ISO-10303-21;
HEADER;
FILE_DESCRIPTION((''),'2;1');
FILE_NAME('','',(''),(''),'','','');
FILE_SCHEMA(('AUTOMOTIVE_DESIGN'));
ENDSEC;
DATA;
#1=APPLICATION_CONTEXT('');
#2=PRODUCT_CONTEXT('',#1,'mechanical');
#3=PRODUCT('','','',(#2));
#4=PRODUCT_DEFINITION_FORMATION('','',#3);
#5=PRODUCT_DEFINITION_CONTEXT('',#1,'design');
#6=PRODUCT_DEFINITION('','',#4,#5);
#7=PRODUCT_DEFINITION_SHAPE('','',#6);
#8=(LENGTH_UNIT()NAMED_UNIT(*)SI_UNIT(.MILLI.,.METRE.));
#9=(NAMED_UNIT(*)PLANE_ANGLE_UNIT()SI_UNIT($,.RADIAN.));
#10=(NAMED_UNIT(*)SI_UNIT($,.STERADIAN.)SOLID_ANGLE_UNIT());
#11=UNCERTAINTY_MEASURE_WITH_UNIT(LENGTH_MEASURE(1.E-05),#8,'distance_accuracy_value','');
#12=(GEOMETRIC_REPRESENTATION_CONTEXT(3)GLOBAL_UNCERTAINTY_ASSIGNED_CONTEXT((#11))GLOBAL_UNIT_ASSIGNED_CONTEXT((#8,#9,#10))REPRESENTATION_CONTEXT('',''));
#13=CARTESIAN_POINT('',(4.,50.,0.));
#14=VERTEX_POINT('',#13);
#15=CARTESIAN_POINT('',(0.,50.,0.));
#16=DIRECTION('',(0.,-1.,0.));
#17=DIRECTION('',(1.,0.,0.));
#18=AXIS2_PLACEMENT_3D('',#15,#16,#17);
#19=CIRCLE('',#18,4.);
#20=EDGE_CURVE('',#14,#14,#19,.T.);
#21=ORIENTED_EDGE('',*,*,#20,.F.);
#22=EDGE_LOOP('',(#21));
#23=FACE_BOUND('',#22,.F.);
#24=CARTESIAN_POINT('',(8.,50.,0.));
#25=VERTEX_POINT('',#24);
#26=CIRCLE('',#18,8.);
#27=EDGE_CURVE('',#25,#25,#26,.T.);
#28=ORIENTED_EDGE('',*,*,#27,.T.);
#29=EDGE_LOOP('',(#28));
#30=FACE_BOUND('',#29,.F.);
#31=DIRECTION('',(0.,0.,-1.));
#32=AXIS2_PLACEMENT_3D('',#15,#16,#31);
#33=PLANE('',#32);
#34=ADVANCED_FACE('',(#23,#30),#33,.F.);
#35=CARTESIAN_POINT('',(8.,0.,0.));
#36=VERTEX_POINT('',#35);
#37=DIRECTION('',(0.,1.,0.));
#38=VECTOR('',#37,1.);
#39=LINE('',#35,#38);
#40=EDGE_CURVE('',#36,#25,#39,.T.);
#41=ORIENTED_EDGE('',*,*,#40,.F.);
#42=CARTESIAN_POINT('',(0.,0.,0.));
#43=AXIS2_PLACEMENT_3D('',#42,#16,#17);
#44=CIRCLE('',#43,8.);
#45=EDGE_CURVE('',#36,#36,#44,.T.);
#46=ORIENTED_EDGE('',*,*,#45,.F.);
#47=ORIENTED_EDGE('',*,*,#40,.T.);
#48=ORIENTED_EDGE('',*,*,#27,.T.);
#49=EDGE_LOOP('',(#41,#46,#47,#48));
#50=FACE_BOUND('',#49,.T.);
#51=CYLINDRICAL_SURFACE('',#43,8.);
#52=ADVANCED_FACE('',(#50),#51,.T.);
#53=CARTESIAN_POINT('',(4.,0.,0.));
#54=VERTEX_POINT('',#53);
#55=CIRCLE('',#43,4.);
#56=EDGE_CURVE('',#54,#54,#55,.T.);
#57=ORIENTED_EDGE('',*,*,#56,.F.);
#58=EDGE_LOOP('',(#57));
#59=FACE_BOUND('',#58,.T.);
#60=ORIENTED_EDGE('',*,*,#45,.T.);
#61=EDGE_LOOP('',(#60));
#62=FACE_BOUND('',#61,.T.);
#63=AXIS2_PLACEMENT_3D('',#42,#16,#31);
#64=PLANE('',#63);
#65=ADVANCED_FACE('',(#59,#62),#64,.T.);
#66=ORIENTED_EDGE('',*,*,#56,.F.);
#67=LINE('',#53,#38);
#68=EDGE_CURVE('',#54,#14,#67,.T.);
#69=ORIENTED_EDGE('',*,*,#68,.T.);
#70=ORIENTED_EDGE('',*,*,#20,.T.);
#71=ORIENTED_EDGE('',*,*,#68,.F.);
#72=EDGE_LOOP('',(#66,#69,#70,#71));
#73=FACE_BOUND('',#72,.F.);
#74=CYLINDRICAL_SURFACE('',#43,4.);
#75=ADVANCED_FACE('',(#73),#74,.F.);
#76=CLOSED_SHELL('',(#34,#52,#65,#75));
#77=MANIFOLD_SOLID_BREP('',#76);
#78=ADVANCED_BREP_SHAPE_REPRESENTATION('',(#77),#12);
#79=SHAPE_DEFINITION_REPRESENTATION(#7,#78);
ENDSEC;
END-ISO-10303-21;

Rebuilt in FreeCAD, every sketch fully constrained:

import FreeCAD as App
import Part
import Sketcher
from FreeCAD import Vector
Q = App.Units.Quantity

doc = App.newDocument("Part")
body = doc.addObject("PartDesign::Body", "Body")

# Sketch on XZ plane
sketch1 = body.newObject("Sketcher::SketchObject", "Sketch")
sketch1.AttachmentSupport = (doc.getObject("XZ_Plane"), [""])
sketch1.MapMode = "FlatFace"
sketch1.addGeometry(Part.Circle(Vector(0, 0, 0), Vector(0, 0, 1), 8), False)
sketch1.addGeometry(Part.Circle(Vector(0, 0, 0), Vector(0, 0, 1), 4), False)
sketch1.addConstraint(Sketcher.Constraint("Coincident", 0, 3, -1, 1))
sketch1.addConstraint(Sketcher.Constraint("Coincident", 1, 3, -1, 1))
sketch1.addConstraint(Sketcher.Constraint("Diameter", 0, Q("16 mm")))
sketch1.addConstraint(Sketcher.Constraint("Diameter", 1, Q("8 mm")))
pad1 = body.newObject("PartDesign::Pad", "Pad")
pad1.Profile = sketch1
pad1.Length = 50
pad1.Reversed = True

doc.recompute()
